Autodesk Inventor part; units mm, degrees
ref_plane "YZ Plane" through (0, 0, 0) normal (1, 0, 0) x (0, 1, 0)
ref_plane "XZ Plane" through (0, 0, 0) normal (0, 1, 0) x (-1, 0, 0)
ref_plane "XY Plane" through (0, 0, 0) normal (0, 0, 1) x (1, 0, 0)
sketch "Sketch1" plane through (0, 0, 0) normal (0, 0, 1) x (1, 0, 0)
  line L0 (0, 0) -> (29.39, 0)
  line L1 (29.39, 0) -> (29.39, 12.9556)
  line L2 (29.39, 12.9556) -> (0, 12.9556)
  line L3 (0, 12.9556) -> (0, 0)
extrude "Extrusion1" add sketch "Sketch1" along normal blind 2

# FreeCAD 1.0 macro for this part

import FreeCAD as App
import Part
import Sketcher

V = App.Vector
Q = App.Units.Quantity

doc = App.newDocument("Part")
body = doc.addObject("PartDesign::Body", "Body")

# Sketch on XY plane
sketch1 = body.newObject("Sketcher::SketchObject", "Sketch")
sketch1.AttachmentSupport = (doc.getObject("XY_Plane"), [""])
sketch1.MapMode = "FlatFace"
sketch1.addGeometry([
    Part.LineSegment(V(0, 13, 0), V(0, 0, 0)),
    Part.LineSegment(V(0, 0, 0), V(29, 0, 0)),
    Part.LineSegment(V(29, 0, 0), V(29, 13, 0)),
    Part.LineSegment(V(29, 13, 0), V(0, 13, 0)),
], False)
sketch1.addConstraint([
    Sketcher.Constraint("Coincident", 0, 2, 1, 1),
    Sketcher.Constraint("Coincident", 1, 2, 2, 1),
    Sketcher.Constraint("Coincident", 2, 2, 3, 1),
    Sketcher.Constraint("Coincident", 3, 2, 0, 1),
    Sketcher.Constraint("Vertical", 0),
    Sketcher.Constraint("Horizontal", 1),
    Sketcher.Constraint("Vertical", 2),
    Sketcher.Constraint("Horizontal", 3),
    Sketcher.Constraint("Coincident", 0, 2, -1, 1),
    Sketcher.Constraint("DistanceX", 1, 1, 1, 2, Q("29.39 mm")),
    Sketcher.Constraint("DistanceY", 0, 2, 0, 1, Q("12.9556 mm")),
])
pad1 = body.newObject("PartDesign::Pad", "Pad")
pad1.Profile = sketch1
pad1.Length = 2

doc.recompute()
